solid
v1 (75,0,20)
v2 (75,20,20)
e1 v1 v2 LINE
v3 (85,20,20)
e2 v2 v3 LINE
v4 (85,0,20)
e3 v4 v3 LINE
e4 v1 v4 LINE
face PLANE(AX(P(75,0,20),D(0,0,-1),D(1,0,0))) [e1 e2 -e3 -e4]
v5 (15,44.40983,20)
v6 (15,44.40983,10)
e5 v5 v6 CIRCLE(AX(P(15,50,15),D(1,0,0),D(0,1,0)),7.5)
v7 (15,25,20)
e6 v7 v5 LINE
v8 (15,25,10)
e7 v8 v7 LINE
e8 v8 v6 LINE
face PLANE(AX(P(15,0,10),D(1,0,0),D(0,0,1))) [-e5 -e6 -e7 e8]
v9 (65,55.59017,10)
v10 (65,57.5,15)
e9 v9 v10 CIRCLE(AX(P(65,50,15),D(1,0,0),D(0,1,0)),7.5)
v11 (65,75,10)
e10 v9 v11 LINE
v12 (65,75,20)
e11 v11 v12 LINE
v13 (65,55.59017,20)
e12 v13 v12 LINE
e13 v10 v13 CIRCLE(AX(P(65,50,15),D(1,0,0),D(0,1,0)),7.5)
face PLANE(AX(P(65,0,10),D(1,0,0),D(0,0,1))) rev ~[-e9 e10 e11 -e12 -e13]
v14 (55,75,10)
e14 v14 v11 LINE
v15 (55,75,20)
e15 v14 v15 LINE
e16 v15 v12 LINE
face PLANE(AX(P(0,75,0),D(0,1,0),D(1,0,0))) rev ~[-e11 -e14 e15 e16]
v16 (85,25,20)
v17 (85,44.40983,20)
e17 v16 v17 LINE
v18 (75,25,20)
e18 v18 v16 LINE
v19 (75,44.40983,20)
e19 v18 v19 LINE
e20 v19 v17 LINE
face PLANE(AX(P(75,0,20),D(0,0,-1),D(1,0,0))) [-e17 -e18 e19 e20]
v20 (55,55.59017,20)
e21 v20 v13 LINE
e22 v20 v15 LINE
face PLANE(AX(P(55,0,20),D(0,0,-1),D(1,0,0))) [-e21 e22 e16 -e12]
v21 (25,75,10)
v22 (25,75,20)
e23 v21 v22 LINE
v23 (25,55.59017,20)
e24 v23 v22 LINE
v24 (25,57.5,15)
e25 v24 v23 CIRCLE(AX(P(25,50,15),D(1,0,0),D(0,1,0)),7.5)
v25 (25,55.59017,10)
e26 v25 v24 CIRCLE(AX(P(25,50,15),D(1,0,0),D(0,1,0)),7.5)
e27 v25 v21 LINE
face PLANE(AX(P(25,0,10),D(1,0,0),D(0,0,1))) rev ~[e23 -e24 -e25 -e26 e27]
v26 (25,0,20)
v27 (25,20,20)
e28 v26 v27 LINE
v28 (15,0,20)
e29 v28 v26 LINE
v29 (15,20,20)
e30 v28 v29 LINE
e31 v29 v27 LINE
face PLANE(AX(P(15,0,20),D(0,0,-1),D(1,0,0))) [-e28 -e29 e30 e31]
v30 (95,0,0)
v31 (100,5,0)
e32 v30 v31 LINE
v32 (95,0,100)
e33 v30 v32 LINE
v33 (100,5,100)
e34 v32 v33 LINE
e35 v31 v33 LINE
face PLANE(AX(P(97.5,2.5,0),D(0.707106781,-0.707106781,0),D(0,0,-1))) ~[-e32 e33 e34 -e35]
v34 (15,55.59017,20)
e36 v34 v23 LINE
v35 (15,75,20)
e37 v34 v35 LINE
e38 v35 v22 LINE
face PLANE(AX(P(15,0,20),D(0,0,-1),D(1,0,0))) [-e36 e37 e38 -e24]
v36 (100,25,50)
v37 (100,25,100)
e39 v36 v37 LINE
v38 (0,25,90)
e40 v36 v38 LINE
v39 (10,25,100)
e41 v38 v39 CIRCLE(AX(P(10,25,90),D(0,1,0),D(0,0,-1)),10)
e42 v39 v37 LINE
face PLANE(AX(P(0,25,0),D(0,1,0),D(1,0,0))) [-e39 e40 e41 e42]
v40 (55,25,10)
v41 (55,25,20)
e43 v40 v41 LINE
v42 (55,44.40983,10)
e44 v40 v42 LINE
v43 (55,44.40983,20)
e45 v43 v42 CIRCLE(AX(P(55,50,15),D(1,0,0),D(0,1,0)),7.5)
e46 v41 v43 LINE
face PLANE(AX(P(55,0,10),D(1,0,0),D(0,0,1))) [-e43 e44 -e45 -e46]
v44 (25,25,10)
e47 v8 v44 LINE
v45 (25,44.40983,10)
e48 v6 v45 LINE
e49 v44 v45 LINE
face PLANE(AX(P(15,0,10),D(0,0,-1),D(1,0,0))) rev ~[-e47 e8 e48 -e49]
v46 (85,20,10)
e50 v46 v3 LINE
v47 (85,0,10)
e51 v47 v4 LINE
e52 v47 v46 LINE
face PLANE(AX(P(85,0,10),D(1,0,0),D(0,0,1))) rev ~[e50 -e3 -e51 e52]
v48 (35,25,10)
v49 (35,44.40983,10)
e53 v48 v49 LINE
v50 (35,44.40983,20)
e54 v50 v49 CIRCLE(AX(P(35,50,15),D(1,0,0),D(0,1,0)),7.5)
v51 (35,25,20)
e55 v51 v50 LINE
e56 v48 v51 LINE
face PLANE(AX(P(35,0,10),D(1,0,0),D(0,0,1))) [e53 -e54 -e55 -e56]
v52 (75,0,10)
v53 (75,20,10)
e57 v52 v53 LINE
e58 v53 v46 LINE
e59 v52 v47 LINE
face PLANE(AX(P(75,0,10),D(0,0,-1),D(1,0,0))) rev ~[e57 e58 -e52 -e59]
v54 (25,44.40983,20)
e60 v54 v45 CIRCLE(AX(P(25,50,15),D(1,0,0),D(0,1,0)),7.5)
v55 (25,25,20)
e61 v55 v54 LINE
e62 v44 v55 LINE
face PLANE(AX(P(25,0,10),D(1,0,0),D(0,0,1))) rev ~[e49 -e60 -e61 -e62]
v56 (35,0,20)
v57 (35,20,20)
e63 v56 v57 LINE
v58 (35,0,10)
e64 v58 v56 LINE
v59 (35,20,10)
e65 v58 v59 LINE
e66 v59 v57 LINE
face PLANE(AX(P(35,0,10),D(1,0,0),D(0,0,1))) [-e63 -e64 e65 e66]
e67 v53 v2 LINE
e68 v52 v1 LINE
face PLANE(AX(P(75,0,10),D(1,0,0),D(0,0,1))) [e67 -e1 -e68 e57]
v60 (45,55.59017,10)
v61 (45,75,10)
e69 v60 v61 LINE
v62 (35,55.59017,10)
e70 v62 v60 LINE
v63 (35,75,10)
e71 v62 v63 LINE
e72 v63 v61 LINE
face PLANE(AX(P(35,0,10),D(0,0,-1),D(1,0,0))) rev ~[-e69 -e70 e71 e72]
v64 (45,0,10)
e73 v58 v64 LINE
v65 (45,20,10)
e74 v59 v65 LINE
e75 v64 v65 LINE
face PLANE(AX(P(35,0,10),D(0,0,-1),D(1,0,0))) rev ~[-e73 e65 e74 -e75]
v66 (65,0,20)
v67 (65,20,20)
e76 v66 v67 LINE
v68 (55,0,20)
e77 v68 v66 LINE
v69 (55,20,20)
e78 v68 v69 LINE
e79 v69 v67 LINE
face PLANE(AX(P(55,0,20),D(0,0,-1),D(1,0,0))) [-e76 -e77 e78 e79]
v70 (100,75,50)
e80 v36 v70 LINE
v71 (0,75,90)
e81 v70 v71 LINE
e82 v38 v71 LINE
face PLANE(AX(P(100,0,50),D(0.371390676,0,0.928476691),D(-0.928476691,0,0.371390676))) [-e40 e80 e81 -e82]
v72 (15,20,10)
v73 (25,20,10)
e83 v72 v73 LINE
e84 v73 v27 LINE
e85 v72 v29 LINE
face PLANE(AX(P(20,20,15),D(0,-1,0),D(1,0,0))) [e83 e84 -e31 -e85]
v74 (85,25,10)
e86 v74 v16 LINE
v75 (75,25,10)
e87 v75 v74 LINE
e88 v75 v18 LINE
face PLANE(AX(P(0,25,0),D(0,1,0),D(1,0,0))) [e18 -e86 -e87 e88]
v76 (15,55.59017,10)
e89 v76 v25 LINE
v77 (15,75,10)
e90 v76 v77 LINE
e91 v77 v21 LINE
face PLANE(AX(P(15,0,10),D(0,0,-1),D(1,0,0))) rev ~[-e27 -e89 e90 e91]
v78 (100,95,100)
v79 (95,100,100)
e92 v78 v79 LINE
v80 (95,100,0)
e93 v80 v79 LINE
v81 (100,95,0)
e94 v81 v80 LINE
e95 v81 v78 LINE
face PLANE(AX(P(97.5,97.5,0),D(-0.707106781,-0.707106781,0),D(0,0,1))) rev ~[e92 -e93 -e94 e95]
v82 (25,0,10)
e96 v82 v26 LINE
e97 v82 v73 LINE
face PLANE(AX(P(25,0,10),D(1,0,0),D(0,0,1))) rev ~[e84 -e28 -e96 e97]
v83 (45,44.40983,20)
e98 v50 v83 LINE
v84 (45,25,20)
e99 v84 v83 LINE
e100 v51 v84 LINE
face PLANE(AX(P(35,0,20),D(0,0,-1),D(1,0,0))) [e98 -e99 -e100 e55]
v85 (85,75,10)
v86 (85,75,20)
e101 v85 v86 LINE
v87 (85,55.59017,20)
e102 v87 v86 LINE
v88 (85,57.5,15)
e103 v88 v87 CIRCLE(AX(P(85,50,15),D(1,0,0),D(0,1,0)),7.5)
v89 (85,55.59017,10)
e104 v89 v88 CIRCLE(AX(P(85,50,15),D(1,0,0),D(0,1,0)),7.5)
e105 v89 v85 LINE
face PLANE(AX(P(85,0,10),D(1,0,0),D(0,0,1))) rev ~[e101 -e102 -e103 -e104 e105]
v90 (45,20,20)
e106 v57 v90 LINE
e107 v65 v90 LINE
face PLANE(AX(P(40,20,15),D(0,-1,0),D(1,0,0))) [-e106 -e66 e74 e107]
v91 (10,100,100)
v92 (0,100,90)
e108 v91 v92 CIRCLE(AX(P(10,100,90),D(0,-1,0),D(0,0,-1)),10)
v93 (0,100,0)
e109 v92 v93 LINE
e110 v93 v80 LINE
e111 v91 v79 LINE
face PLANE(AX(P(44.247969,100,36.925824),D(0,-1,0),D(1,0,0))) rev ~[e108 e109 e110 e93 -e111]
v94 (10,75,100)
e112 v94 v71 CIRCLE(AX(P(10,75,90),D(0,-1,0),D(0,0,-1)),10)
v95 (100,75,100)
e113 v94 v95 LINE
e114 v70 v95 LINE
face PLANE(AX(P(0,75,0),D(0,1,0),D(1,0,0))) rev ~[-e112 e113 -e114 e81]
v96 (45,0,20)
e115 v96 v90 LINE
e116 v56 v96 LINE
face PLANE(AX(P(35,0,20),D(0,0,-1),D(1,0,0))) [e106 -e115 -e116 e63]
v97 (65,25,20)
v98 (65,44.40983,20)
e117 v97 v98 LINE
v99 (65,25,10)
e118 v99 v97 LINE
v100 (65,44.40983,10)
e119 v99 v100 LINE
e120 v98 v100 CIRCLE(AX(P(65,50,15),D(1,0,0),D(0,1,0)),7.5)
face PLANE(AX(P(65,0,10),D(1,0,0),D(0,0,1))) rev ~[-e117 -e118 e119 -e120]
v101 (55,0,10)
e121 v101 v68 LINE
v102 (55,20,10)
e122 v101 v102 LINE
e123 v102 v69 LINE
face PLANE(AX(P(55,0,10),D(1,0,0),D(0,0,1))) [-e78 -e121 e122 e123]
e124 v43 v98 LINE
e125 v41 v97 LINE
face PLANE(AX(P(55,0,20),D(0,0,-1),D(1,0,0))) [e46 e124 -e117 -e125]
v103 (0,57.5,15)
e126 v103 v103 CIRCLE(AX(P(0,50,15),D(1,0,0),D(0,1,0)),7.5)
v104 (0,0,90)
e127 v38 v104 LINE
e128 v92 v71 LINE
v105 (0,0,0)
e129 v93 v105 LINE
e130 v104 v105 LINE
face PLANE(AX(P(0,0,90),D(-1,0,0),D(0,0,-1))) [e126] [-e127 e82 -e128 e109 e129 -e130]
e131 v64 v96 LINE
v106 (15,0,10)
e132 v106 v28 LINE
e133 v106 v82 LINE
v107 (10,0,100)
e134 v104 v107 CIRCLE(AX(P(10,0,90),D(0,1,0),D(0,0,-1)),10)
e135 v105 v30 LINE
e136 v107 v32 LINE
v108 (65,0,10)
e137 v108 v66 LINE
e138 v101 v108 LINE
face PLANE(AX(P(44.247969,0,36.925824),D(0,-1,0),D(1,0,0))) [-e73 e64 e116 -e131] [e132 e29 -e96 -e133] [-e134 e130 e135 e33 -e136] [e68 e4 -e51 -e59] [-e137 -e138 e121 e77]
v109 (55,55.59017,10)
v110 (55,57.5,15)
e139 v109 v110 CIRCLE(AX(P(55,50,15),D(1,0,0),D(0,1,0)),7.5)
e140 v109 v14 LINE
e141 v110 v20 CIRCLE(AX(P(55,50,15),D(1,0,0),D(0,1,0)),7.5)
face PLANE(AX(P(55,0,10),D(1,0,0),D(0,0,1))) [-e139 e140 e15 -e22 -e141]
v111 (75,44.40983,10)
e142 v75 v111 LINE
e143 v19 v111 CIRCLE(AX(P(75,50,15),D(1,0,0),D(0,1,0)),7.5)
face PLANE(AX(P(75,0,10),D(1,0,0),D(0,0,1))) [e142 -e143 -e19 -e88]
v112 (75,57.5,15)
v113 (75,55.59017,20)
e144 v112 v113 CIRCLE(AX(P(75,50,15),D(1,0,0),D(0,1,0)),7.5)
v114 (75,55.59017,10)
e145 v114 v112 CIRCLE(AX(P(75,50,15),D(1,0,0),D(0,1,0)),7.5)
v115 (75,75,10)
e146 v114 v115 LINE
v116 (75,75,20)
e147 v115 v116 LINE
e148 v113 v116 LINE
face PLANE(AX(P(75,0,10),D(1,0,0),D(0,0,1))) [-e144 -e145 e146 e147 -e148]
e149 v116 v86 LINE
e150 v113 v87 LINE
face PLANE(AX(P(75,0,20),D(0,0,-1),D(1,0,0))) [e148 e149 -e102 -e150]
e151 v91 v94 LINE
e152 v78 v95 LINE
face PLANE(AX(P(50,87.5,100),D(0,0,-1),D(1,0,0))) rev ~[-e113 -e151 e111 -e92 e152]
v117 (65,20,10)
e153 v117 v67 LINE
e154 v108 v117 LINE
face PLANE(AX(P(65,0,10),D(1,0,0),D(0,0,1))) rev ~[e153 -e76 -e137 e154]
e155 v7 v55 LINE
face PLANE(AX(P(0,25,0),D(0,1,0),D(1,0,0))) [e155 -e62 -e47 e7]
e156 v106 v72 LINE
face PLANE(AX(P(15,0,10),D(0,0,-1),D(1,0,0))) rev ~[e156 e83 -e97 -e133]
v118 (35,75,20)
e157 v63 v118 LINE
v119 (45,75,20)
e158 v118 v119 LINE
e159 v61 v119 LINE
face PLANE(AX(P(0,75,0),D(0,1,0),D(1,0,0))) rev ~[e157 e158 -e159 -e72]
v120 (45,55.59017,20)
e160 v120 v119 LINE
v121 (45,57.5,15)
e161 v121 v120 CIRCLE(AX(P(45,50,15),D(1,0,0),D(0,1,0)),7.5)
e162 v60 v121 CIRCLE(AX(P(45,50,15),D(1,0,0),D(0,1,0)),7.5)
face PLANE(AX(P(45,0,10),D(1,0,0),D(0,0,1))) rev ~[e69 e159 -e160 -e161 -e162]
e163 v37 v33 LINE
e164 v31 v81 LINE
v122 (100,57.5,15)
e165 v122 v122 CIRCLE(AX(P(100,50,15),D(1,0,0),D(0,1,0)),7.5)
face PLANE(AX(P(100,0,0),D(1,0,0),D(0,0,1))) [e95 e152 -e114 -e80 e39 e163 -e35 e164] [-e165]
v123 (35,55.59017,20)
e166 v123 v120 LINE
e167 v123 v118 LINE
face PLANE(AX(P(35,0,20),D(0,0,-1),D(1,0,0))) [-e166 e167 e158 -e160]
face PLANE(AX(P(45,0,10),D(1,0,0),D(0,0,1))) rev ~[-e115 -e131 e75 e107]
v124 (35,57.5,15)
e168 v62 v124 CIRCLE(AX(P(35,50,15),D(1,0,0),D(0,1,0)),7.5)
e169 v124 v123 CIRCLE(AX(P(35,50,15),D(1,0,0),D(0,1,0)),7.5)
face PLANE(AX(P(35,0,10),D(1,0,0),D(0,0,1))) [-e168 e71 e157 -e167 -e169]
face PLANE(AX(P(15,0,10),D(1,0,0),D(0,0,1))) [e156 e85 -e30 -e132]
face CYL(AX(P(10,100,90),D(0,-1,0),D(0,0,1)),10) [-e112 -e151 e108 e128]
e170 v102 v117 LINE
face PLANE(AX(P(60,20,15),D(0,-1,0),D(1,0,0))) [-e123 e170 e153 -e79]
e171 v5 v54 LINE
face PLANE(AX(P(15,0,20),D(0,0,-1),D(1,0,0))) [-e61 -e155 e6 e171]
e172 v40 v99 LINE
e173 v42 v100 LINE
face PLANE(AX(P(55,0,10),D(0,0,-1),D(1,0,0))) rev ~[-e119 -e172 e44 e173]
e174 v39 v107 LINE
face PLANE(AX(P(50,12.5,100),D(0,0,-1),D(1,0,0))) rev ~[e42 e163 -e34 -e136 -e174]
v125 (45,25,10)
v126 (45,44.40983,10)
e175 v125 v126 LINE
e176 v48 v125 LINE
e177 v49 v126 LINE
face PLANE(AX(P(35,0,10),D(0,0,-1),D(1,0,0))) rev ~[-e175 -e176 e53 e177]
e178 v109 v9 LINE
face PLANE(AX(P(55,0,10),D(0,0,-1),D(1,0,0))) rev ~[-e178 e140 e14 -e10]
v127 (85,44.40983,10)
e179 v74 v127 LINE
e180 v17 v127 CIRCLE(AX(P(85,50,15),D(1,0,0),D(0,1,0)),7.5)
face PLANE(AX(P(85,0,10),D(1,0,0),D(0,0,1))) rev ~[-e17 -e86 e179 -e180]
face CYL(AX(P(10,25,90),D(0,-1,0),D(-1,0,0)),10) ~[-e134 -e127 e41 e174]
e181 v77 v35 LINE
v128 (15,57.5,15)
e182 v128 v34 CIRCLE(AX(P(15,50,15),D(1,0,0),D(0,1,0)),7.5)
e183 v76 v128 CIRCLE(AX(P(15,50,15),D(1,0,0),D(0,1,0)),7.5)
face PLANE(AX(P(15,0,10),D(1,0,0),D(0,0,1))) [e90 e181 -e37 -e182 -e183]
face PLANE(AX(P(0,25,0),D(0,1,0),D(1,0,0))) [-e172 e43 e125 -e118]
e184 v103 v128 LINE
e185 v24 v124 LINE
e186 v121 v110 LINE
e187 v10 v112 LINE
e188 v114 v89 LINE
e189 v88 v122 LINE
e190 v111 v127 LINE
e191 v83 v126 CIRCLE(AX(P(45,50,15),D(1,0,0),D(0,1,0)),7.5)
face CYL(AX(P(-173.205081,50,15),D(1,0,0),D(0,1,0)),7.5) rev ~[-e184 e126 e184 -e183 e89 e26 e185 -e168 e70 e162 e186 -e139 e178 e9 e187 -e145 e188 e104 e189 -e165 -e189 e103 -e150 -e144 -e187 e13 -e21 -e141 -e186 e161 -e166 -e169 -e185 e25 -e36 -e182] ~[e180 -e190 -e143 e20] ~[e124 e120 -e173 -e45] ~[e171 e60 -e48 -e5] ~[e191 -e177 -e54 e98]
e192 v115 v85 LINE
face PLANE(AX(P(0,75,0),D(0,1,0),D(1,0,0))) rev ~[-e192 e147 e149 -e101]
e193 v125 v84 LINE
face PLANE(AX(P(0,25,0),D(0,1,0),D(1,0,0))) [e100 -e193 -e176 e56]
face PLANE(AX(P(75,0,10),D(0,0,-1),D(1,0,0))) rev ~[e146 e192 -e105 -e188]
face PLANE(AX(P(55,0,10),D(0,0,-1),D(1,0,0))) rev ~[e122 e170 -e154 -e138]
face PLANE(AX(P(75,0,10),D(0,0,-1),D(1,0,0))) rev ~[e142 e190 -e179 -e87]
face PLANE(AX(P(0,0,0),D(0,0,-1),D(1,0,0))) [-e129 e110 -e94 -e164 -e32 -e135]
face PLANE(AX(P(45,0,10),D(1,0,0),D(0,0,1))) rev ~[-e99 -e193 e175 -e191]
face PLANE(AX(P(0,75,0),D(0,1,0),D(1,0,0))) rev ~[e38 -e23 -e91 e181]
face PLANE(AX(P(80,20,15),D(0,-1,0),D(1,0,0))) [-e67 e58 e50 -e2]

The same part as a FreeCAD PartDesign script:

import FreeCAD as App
import Part
import Sketcher
from FreeCAD import Vector


def edges_at(feature, points):
    """Names of the edges that pass closest to the given points."""
    edges = feature.Shape.Edges
    near = lambda p: min(range(len(edges)), key=lambda i: edges[i].distToShape(Part.Vertex(*p))[0])
    return sorted({f"Edge{near(p) + 1}" for p in points})


def add_polygon(sketch, points):
    """Adds a closed chain of lines whose ends are joined by coincident constraints."""
    first, n = sketch.GeometryCount, len(points)
    for a, b in zip(points, points[1:] + points[:1]):
        sketch.addGeometry(Part.LineSegment(App.Vector(*a, 0), App.Vector(*b, 0)), False)
    for i in range(n):
        sketch.addConstraint(Sketcher.Constraint("Coincident", first + i, 2, first + (i + 1) % n, 1))

doc = App.newDocument("Part")
body = doc.addObject("PartDesign::Body", "Body")

# Sketch on XZ plane
sketch1 = doc.addObject("Sketcher::SketchObject", "Sketch")
body.addObject(sketch1)
sketch1.AttachmentSupport = (doc.XZ_Plane, [""])
sketch1.MapMode = "FlatFace"
add_polygon(sketch1, [(100, 50), (0, 90), (0, 0), (100, 0)])  # lines 0-3
add_polygon(sketch1, [(25, 10), (15, 10), (15, 20), (25, 20)])  # lines 4-7
add_polygon(sketch1, [(45, 10), (35, 10), (35, 20), (45, 20)])  # lines 8-11
add_polygon(sketch1, [(65, 10), (55, 10), (55, 20), (65, 20)])  # lines 12-15
add_polygon(sketch1, [(85, 10), (75, 10), (75, 20), (85, 20)])  # lines 16-19
sketch1.addConstraint([
    Sketcher.Constraint("Vertical", 1),
    Sketcher.Constraint("Horizontal", 2),
    Sketcher.Constraint("Vertical", 3),
    Sketcher.Constraint("Horizontal", 4),
    Sketcher.Constraint("Vertical", 5),
    Sketcher.Constraint("Horizontal", 6),
    Sketcher.Constraint("Vertical", 7),
    Sketcher.Constraint("Horizontal", 8),
    Sketcher.Constraint("Vertical", 9),
    Sketcher.Constraint("Horizontal", 10),
    Sketcher.Constraint("Vertical", 11),
    Sketcher.Constraint("Horizontal", 12),
    Sketcher.Constraint("Vertical", 13),
    Sketcher.Constraint("Horizontal", 14),
    Sketcher.Constraint("Vertical", 15),
    Sketcher.Constraint("Horizontal", 16),
    Sketcher.Constraint("Vertical", 17),
    Sketcher.Constraint("Horizontal", 18),
    Sketcher.Constraint("Vertical", 19),
    Sketcher.Constraint("Coincident", 1, 2, -1, 1),
    Sketcher.Constraint("Horizontal", 7, 2, 8, 2),
    Sketcher.Constraint("Horizontal", 6, 2, 9, 2),
    Sketcher.Constraint("Horizontal", 11, 2, 12, 2),
    Sketcher.Constraint("Horizontal", 10, 2, 13, 2),
    Sketcher.Constraint("Horizontal", 15, 2, 16, 2),
    Sketcher.Constraint("Horizontal", 14, 2, 17, 2),
    Sketcher.Constraint("Equal", 6, 8),
    Sketcher.Constraint("Equal", 10, 12),
    Sketcher.Constraint("Equal", 14, 16),
    Sketcher.Constraint("Equal", 18, 5),
    Sketcher.Constraint("DistanceX", 2, 1, 2, 2, 100.0),
    Sketcher.Constraint("DistanceX", 4, 2, 4, 1, 10.0),
    Sketcher.Constraint("DistanceY", 1, 2, 1, 1, 90.0),
    Sketcher.Constraint("DistanceY", 3, 1, 3, 2, 50.0),
    Sketcher.Constraint("DistanceX", -1, 1, 4, 2, 15.0),
    Sketcher.Constraint("DistanceY", -1, 1, 4, 2, 10.0),
    Sketcher.Constraint("DistanceX", -1, 1, 8, 2, 35.0),
    Sketcher.Constraint("DistanceX", -1, 1, 12, 2, 55.0),
    Sketcher.Constraint("DistanceX", -1, 1, 16, 2, 75.0),
])
pad1 = doc.addObject("PartDesign::Pad", "Pad")
body.addObject(pad1)
pad1.Profile = sketch1
pad1.Length = 100
pad1.Reversed = True

# Sketch on XY plane
sketch2 = doc.addObject("Sketcher::SketchObject", "Sketch001")
body.addObject(sketch2)
sketch2.AttachmentSupport = (doc.XY_Plane, [""])
sketch2.MapMode = "FlatFace"
add_polygon(sketch2, [(0, 0), (0, 25), (100, 25), (100, 0)])  # lines 0-3
add_polygon(sketch2, [(0, 75), (0, 100), (100, 100), (100, 75)])  # lines 4-7
sketch2.addConstraint([
    Sketcher.Constraint("Vertical", 0),
    Sketcher.Constraint("Horizontal", 1),
    Sketcher.Constraint("Vertical", 2),
    Sketcher.Constraint("Horizontal", 3),
    Sketcher.Constraint("Vertical", 4),
    Sketcher.Constraint("Horizontal", 5),
    Sketcher.Constraint("Vertical", 6),
    Sketcher.Constraint("Horizontal", 7),
    Sketcher.Constraint("Coincident", 3, 2, -1, 1),
    Sketcher.Constraint("PointOnObject", 4, 2, -2),
    Sketcher.Constraint("Vertical", 2, 2, 5, 2),
    Sketcher.Constraint("Equal", 2, 4),
    Sketcher.Constraint("DistanceX", 1, 1, 1, 2, 100.0),
    Sketcher.Constraint("DistanceY", 0, 1, 0, 2, 25.0),
    Sketcher.Constraint("DistanceY", -1, 1, 4, 2, 100.0),
])
pad2 = doc.addObject("PartDesign::Pad", "Pad001")
body.addObject(pad2)
pad2.Profile = sketch2
pad2.Length = 100
doc.recompute()

fillet = doc.addObject("PartDesign::Fillet", "Fillet")
body.addObject(fillet)
fillet.Base = (pad2, edges_at(pad2, [(0, 12.5, 100), (0, 87.5, 100)]))
fillet.Radius = 10

# Sketch on YZ plane
sketch3 = doc.addObject("Sketcher::SketchObject", "Sketch002")
body.addObject(sketch3)
sketch3.AttachmentSupport = (doc.YZ_Plane, [""])
sketch3.MapMode = "FlatFace"
sketch3.addGeometry(Part.Circle(Vector(50, 15, 0), Vector(0, 0, 1), 8), False)
sketch3.addConstraint([
    Sketcher.Constraint("Diameter", 0, 15.0),
    Sketcher.Constraint("DistanceX", -1, 1, 0, 3, 50.0),
    Sketcher.Constraint("DistanceY", -1, 1, 0, 3, 15.0),
])
doc.recompute()
hole = doc.addObject("PartDesign::Hole", "Hole")
body.addObject(hole)
hole.Profile = sketch3
hole.ThreadType = "None"
hole.Diameter = 15
hole.DepthType = "ThroughAll"
hole.Reversed = True

# Sketch on XZ plane
sketch4 = doc.addObject("Sketcher::SketchObject", "Sketch003")
body.addObject(sketch4)
sketch4.AttachmentSupport = (doc.XZ_Plane, [""])
sketch4.MapMode = "FlatFace"
add_polygon(sketch4, [(75, 20), (75, 10), (85, 10), (85, 20)])  # lines 0-3
add_polygon(sketch4, [(55, 20), (55, 10), (65, 10), (65, 20)])  # lines 4-7
add_polygon(sketch4, [(35, 20), (35, 10), (45, 10), (45, 20)])  # lines 8-11
add_polygon(sketch4, [(15, 20), (15, 10), (25, 10), (25, 20)])  # lines 12-15
sketch4.addConstraint([
    Sketcher.Constraint("Vertical", 0),
    Sketcher.Constraint("Horizontal", 1),
    Sketcher.Constraint("Vertical", 2),
    Sketcher.Constraint("Horizontal", 3),
    Sketcher.Constraint("Vertical", 4),
    Sketcher.Constraint("Horizontal", 5),
    Sketcher.Constraint("Vertical", 6),
    Sketcher.Constraint("Horizontal", 7),
    Sketcher.Constraint("Vertical", 8),
    Sketcher.Constraint("Horizontal", 9),
    Sketcher.Constraint("Vertical", 10),
    Sketcher.Constraint("Horizontal", 11),
    Sketcher.Constraint("Vertical", 12),
    Sketcher.Constraint("Horizontal", 13),
    Sketcher.Constraint("Vertical", 14),
    Sketcher.Constraint("Horizontal", 15),
    Sketcher.Constraint("Horizontal", 1, 2, 4, 2),
    Sketcher.Constraint("Horizontal", 3, 2, 6, 2),
    Sketcher.Constraint("Horizontal", 5, 2, 8, 2),
    Sketcher.Constraint("Horizontal", 7, 2, 10, 2),
    Sketcher.Constraint("Horizontal", 9, 2, 12, 2),
    Sketcher.Constraint("Horizontal", 11, 2, 14, 2),
    Sketcher.Constraint("Equal", 3, 5),
    Sketcher.Constraint("Equal", 7, 9),
    Sketcher.Constraint("Equal", 11, 13),
    Sketcher.Constraint("Equal", 15, 0),
    Sketcher.Constraint("DistanceX", 1, 1, 1, 2, 10.0),
    Sketcher.Constraint("DistanceX", -1, 1, 0, 2, 75.0),
    Sketcher.Constraint("DistanceY", -1, 1, 0, 2, 10.0),
    Sketcher.Constraint("DistanceX", -1, 1, 4, 2, 55.0),
    Sketcher.Constraint("DistanceX", -1, 1, 8, 2, 35.0),
    Sketcher.Constraint("DistanceX", -1, 1, 12, 2, 15.0),
])
pocket1 = doc.addObject("PartDesign::Pocket", "Pocket")
body.addObject(pocket1)
pocket1.Profile = sketch4
pocket1.Length = 20
doc.recompute()

chamfer = doc.addObject("PartDesign::Chamfer", "Chamfer")
body.addObject(chamfer)
chamfer.Base = (pocket1, edges_at(pocket1, [(100, 0, 50), (100, 100, 50)]))
chamfer.Size = 5

doc.recompute()
